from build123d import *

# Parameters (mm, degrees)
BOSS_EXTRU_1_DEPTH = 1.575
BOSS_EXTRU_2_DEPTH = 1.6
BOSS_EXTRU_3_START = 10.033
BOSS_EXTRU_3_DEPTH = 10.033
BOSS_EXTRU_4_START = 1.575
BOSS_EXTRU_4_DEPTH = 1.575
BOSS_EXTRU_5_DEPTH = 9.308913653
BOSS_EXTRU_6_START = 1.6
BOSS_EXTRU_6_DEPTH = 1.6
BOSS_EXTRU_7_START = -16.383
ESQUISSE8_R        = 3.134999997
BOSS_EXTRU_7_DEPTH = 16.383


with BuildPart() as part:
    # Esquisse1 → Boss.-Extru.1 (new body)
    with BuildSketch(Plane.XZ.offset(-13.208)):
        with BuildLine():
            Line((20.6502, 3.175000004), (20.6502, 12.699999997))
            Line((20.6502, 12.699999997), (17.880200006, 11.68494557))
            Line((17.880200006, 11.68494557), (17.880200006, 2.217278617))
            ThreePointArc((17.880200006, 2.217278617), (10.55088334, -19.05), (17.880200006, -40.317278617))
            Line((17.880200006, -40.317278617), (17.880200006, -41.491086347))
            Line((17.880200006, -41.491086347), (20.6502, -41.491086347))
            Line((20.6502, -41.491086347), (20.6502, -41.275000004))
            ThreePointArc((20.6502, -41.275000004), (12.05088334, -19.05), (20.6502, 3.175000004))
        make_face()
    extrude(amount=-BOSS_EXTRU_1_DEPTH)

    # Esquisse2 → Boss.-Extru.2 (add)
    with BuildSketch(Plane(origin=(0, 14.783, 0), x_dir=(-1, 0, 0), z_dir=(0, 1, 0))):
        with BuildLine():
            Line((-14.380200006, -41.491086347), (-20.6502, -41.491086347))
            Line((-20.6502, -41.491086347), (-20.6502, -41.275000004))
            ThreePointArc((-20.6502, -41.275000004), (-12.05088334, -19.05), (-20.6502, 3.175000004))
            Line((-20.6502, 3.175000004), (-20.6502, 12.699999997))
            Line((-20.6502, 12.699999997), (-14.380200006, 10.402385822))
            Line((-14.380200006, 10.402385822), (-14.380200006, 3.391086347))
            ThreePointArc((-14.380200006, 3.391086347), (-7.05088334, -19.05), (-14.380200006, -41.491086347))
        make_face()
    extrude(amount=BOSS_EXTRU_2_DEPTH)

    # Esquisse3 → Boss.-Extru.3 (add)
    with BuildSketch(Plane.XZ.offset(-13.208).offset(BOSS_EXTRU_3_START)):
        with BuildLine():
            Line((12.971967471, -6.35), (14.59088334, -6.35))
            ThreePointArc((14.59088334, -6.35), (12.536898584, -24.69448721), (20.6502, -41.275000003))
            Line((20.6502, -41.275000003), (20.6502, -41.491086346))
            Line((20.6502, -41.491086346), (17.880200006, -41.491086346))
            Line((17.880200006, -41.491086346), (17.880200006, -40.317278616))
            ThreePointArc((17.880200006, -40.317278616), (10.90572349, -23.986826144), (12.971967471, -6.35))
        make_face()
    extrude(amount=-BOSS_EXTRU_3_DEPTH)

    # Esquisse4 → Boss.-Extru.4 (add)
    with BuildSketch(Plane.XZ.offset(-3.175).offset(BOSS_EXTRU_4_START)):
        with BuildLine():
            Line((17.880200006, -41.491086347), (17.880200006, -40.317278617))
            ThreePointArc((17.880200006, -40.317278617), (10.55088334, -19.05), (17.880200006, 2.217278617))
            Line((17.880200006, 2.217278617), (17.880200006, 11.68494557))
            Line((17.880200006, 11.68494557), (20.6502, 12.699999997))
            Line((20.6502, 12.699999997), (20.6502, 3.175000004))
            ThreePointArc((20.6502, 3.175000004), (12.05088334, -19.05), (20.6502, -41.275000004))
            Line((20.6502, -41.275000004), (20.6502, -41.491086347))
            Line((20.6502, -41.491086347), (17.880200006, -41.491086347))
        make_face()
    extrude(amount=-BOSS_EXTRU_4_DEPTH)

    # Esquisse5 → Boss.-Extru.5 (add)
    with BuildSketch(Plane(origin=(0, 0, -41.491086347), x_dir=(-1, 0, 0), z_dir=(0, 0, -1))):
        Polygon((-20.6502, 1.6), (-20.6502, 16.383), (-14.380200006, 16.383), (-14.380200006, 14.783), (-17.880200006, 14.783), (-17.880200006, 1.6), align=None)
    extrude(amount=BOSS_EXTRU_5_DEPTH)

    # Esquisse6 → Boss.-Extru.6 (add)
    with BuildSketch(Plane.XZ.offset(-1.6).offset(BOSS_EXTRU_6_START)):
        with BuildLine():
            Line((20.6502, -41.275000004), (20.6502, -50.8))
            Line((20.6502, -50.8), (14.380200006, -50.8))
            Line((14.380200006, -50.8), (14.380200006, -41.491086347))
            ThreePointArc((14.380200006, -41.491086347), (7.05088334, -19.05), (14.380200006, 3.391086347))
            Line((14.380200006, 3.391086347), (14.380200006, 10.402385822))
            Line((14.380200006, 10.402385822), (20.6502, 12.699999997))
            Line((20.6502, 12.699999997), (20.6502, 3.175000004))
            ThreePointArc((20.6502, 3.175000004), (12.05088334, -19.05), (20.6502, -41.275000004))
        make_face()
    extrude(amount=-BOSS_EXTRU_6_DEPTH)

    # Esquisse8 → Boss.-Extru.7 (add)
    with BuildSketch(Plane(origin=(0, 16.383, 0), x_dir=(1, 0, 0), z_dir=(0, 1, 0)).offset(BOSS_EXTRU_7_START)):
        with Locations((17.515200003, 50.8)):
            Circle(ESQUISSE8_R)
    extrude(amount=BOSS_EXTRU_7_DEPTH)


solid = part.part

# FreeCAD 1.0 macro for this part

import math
import FreeCAD as App
import Part
import Sketcher
from FreeCAD import Vector
Q = App.Units.Quantity


def add_polygon(sketch, points):
    """Adds a closed chain of lines whose ends are joined by coincident constraints."""
    first, n = sketch.GeometryCount, len(points)
    for a, b in zip(points, points[1:] + points[:1]):
        sketch.addGeometry(Part.LineSegment(App.Vector(*a, 0), App.Vector(*b, 0)), False)
    for i in range(n):
        sketch.addConstraint(Sketcher.Constraint("Coincident", first + i, 2, first + (i + 1) % n, 1))

doc = App.newDocument("Part")
body = doc.addObject("PartDesign::Body", "Body")

# Sketch on XZ plane
sketch1 = doc.addObject("Sketcher::SketchObject", "Sketch")
body.addObject(sketch1)
sketch1.AttachmentSupport = (doc.XZ_Plane, [""])
sketch1.MapMode = "FlatFace"
sketch1.AttachmentOffset = App.Placement(Vector(0, 0, -0.52 * 25.4), App.Rotation())
sketch1.addGeometry(Part.LineSegment(Vector(20.65, 3.18, 0), Vector(20.65, 12.7, 0)), False)
sketch1.addGeometry(Part.LineSegment(Vector(20.65, 12.7, 0), Vector(17.88, 11.68, 0)), False)
sketch1.addGeometry(Part.LineSegment(Vector(17.88, 11.68, 0), Vector(17.88, 2.22, 0)), False)
sketch1.addGeometry(Part.ArcOfCircle(Part.Circle(Vector(45.07, -19.05, 0), Vector(0, 0, 1), 34.52), math.radians(142), math.radians(218)), False)
sketch1.addGeometry(Part.LineSegment(Vector(17.88, -40.32, 0), Vector(17.88, -41.49, 0)), False)
sketch1.addGeometry(Part.LineSegment(Vector(17.88, -41.49, 0), Vector(20.65, -41.49, 0)), False)
sketch1.addGeometry(Part.LineSegment(Vector(20.65, -41.49, 0), Vector(20.65, -41.28, 0)), False)
sketch1.addGeometry(Part.ArcOfCircle(Part.Circle(Vector(45.07, -19.05, 0), Vector(0, 0, 1), 33.02), math.radians(138), math.radians(222)), False)
sketch1.addConstraint(Sketcher.Constraint("Coincident", 0, 2, 1, 1))
sketch1.addConstraint(Sketcher.Constraint("Coincident", 1, 2, 2, 1))
sketch1.addConstraint(Sketcher.Constraint("Coincident", 2, 2, 3, 1))
sketch1.addConstraint(Sketcher.Constraint("Coincident", 3, 2, 4, 1))
sketch1.addConstraint(Sketcher.Constraint("Coincident", 4, 2, 5, 1))
sketch1.addConstraint(Sketcher.Constraint("Coincident", 5, 2, 6, 1))
sketch1.addConstraint(Sketcher.Constraint("Coincident", 6, 2, 7, 2))
sketch1.addConstraint(Sketcher.Constraint("Coincident", 7, 1, 0, 1))
sketch1.addConstraint(Sketcher.Constraint("Vertical", 0))
sketch1.addConstraint(Sketcher.Constraint("Vertical", 2))
sketch1.addConstraint(Sketcher.Constraint("Vertical", 4))
sketch1.addConstraint(Sketcher.Constraint("Horizontal", 5))
sketch1.addConstraint(Sketcher.Constraint("Vertical", 6))
sketch1.addConstraint(Sketcher.Constraint("Coincident", 7, 3, 3, 3))
sketch1.addConstraint(Sketcher.Constraint("Vertical", 2, 2, 3, 2))
sketch1.addConstraint(Sketcher.Constraint("Vertical", 0, 2, 5, 2))
sketch1.addConstraint(Sketcher.Constraint("Radius", 7, Q("1.3 in")))
sketch1.addConstraint(Sketcher.Constraint("DistanceY", -1, 1, 0, 2, Q("0.5 in")))
sketch1.addConstraint(Sketcher.Constraint("DistanceY", 0, 1, 0, 2, Q("0.375 in")))
sketch1.addConstraint(Sketcher.Constraint("DistanceY", 3, 3, -1, 1, Q("0.75 in")))
sketch1.addConstraint(Sketcher.Constraint("Radius", 3, Q("34.52 mm")))
sketch1.addConstraint(Sketcher.Constraint("DistanceX", -1, 1, 0, 2, Q("0.813 in")))
sketch1.addConstraint(Sketcher.Constraint("DistanceX", 5, 1, 5, 2, Q("2.77 mm")))
sketch1.addConstraint(Sketcher.Constraint("DistanceY", 2, 2, 2, 1, Q("9.467667 mm")))
sketch1.addConstraint(Sketcher.Constraint("DistanceY", 4, 2, 4, 1, Q("1.173808 mm")))
pad1 = doc.addObject("PartDesign::Pad", "Pad")
body.addObject(pad1)
pad1.Profile = sketch1
pad1.Length = 1.575
pad1.Reversed = True

# Sketch on XZ plane
sketch2 = doc.addObject("Sketcher::SketchObject", "Sketch001")
body.addObject(sketch2)
sketch2.AttachmentSupport = (doc.XZ_Plane, [""])
sketch2.MapMode = "FlatFace"
sketch2.AttachmentOffset = App.Placement(Vector(0, 0, -14.783), App.Rotation())
sketch2.addGeometry(Part.LineSegment(Vector(20.65, -41.49, 0), Vector(14.38, -41.49, 0)), False)
sketch2.addGeometry(Part.ArcOfCircle(Part.Circle(Vector(45.07, -19.05, 0), Vector(0, 0, 1), 38.02), math.radians(144), math.radians(216)), False)
sketch2.addGeometry(Part.LineSegment(Vector(14.38, 3.39, 0), Vector(14.38, 10.4, 0)), False)
sketch2.addGeometry(Part.LineSegment(Vector(14.38, 10.4, 0), Vector(20.65, 12.7, 0)), False)
sketch2.addGeometry(Part.LineSegment(Vector(20.65, 12.7, 0), Vector(20.65, 3.18, 0)), False)
sketch2.addGeometry(Part.ArcOfCircle(Part.Circle(Vector(45.07, -19.05, 0), Vector(0, 0, 1), 33.02), math.radians(138), math.radians(222)), False)
sketch2.addGeometry(Part.LineSegment(Vector(20.65, -41.28, 0), Vector(20.65, -41.49, 0)), False)
sketch2.addConstraint(Sketcher.Constraint("Coincident", 0, 2, 1, 2))
sketch2.addConstraint(Sketcher.Constraint("Coincident", 1, 1, 2, 1))
sketch2.addConstraint(Sketcher.Constraint("Coincident", 2, 2, 3, 1))
sketch2.addConstraint(Sketcher.Constraint("Coincident", 3, 2, 4, 1))
sketch2.addConstraint(Sketcher.Constraint("Coincident", 4, 2, 5, 1))
sketch2.addConstraint(Sketcher.Constraint("Coincident", 5, 2, 6, 1))
sketch2.addConstraint(Sketcher.Constraint("Coincident", 6, 2, 0, 1))
sketch2.addConstraint(Sketcher.Constraint("Horizontal", 0))
sketch2.addConstraint(Sketcher.Constraint("Vertical", 2))
sketch2.addConstraint(Sketcher.Constraint("Vertical", 4))
sketch2.addConstraint(Sketcher.Constraint("Vertical", 6))
sketch2.addConstraint(Sketcher.Constraint("Coincident", 5, 3, 1, 3))
sketch2.addConstraint(Sketcher.Constraint("Vertical", 0, 2, 1, 1))
sketch2.addConstraint(Sketcher.Constraint("Vertical", 4, 2, 5, 2))
sketch2.addConstraint(Sketcher.Constraint("Radius", 5, Q("1.3 in")))
sketch2.addConstraint(Sketcher.Constraint("DistanceY", -1, 1, 3, 2, Q("0.5 in")))
sketch2.addConstraint(Sketcher.Constraint("DistanceY", 4, 2, 4, 1, Q("0.375 in")))
sketch2.addConstraint(Sketcher.Constraint("DistanceY", 1, 3, -1, 1, Q("0.75 in")))
sketch2.addConstraint(Sketcher.Constraint("Radius", 1, Q("38.02 mm")))
sketch2.addConstraint(Sketcher.Constraint("DistanceX", -1, 1, 3, 2, Q("0.813 in")))
sketch2.addConstraint(Sketcher.Constraint("DistanceX", 0, 2, 0, 1, Q("6.27 mm")))
sketch2.addConstraint(Sketcher.Constraint("DistanceY", 2, 1, 2, 2, Q("7.011299 mm")))
pad2 = doc.addObject("PartDesign::Pad", "Pad001")
body.addObject(pad2)
pad2.Profile = sketch2
pad2.Length = 1.6
pad2.Reversed = True

# Sketch on XZ plane
sketch3 = doc.addObject("Sketcher::SketchObject", "Sketch002")
body.addObject(sketch3)
sketch3.AttachmentSupport = (doc.XZ_Plane, [""])
sketch3.MapMode = "FlatFace"
sketch3.AttachmentOffset = App.Placement(Vector(0, 0, -0.125 * 25.4), App.Rotation())
sketch3.addGeometry(Part.LineSegment(Vector(14.59, -6.35, 0), Vector(12.97, -6.35, 0)), False)
sketch3.addGeometry(Part.ArcOfCircle(Part.Circle(Vector(45.07, -19.05, 0), Vector(0, 0, 1), 34.52), math.radians(158), math.radians(218)), False)
sketch3.addGeometry(Part.LineSegment(Vector(17.88, -40.32, 0), Vector(17.88, -41.49, 0)), False)
sketch3.addGeometry(Part.LineSegment(Vector(17.88, -41.49, 0), Vector(20.65, -41.49, 0)), False)
sketch3.addGeometry(Part.LineSegment(Vector(20.65, -41.49, 0), Vector(20.65, -41.28, 0)), False)
sketch3.addGeometry(Part.ArcOfCircle(Part.Circle(Vector(45.07, -19.05, 0), Vector(0, 0, 1), 33.02), math.radians(157), math.radians(222)), False)
sketch3.addConstraint(Sketcher.Constraint("Coincident", 0, 2, 1, 1))
sketch3.addConstraint(Sketcher.Constraint("Coincident", 1, 2, 2, 1))
sketch3.addConstraint(Sketcher.Constraint("Coincident", 2, 2, 3, 1))
sketch3.addConstraint(Sketcher.Constraint("Coincident", 3, 2, 4, 1))
sketch3.addConstraint(Sketcher.Constraint("Coincident", 4, 2, 5, 2))
sketch3.addConstraint(Sketcher.Constraint("Coincident", 5, 1, 0, 1))
sketch3.addConstraint(Sketcher.Constraint("Horizontal", 0))
sketch3.addConstraint(Sketcher.Constraint("Vertical", 2))
sketch3.addConstraint(Sketcher.Constraint("Horizontal", 3))
sketch3.addConstraint(Sketcher.Constraint("Vertical", 4))
sketch3.addConstraint(Sketcher.Constraint("Coincident", 5, 3, 1, 3))
sketch3.addConstraint(Sketcher.Constraint("Radius", 5, Q("1.3 in")))
sketch3.addConstraint(Sketcher.Constraint("DistanceY", 1, 3, 0, 2, Q("0.5 in")))
sketch3.addConstraint(Sketcher.Constraint("DistanceY", 1, 3, -1, 1, Q("0.75 in")))
sketch3.addConstraint(Sketcher.Constraint("Radius", 1, Q("34.52 mm")))
sketch3.addConstraint(Sketcher.Constraint("DistanceX", -1, 1, 3, 2, Q("0.813 in")))
sketch3.addConstraint(Sketcher.Constraint("DistanceY", 4, 2, -1, 1, Q("1.625 in")))
sketch3.addConstraint(Sketcher.Constraint("DistanceX", 3, 1, 3, 2, Q("2.77 mm")))
sketch3.addConstraint(Sketcher.Constraint("DistanceY", 2, 2, 2, 1, Q("1.173808 mm")))
pad3 = doc.addObject("PartDesign::Pad", "Pad002")
body.addObject(pad3)
pad3.Profile = sketch3
pad3.Length = Q("0.395 in")
pad3.Reversed = True

# Sketch on XZ plane
sketch4 = doc.addObject("Sketcher::SketchObject", "Sketch003")
body.addObject(sketch4)
sketch4.AttachmentSupport = (doc.XZ_Plane, [""])
sketch4.MapMode = "FlatFace"
sketch4.AttachmentOffset = App.Placement(Vector(0, 0, -1.6), App.Rotation())
sketch4.addGeometry(Part.LineSegment(Vector(17.88, -40.32, 0), Vector(17.88, -41.49, 0)), False)
sketch4.addGeometry(Part.LineSegment(Vector(17.88, -41.49, 0), Vector(20.65, -41.49, 0)), False)
sketch4.addGeometry(Part.LineSegment(Vector(20.65, -41.49, 0), Vector(20.65, -41.28, 0)), False)
sketch4.addGeometry(Part.ArcOfCircle(Part.Circle(Vector(45.07, -19.05, 0), Vector(0, 0, 1), 33.02), math.radians(138), math.radians(222)), False)
sketch4.addGeometry(Part.LineSegment(Vector(20.65, 3.18, 0), Vector(20.65, 12.7, 0)), False)
sketch4.addGeometry(Part.LineSegment(Vector(20.65, 12.7, 0), Vector(17.88, 11.68, 0)), False)
sketch4.addGeometry(Part.LineSegment(Vector(17.88, 11.68, 0), Vector(17.88, 2.22, 0)), False)
sketch4.addGeometry(Part.ArcOfCircle(Part.Circle(Vector(45.07, -19.05, 0), Vector(0, 0, 1), 34.52), math.radians(142), math.radians(218)), False)
sketch4.addConstraint(Sketcher.Constraint("Coincident", 0, 2, 1, 1))
sketch4.addConstraint(Sketcher.Constraint("Coincident", 1, 2, 2, 1))
sketch4.addConstraint(Sketcher.Constraint("Coincident", 2, 2, 3, 2))
sketch4.addConstraint(Sketcher.Constraint("Coincident", 3, 1, 4, 1))
sketch4.addConstraint(Sketcher.Constraint("Coincident", 4, 2, 5, 1))
sketch4.addConstraint(Sketcher.Constraint("Coincident", 5, 2, 6, 1))
sketch4.addConstraint(Sketcher.Constraint("Coincident", 6, 2, 7, 1))
sketch4.addConstraint(Sketcher.Constraint("Coincident", 7, 2, 0, 1))
sketch4.addConstraint(Sketcher.Constraint("Vertical", 0))
sketch4.addConstraint(Sketcher.Constraint("Horizontal", 1))
sketch4.addConstraint(Sketcher.Constraint("Vertical", 2))
sketch4.addConstraint(Sketcher.Constraint("Vertical", 4))
sketch4.addConstraint(Sketcher.Constraint("Vertical", 6))
sketch4.addConstraint(Sketcher.Constraint("Coincident", 7, 3, 3, 3))
sketch4.addConstraint(Sketcher.Constraint("Vertical", 2, 2, 3, 1))
sketch4.addConstraint(Sketcher.Constraint("Vertical", 0, 2, 5, 2))
sketch4.addConstraint(Sketcher.Constraint("Radius", 3, Q("1.3 in")))
sketch4.addConstraint(Sketcher.Constraint("DistanceY", -1, 1, 4, 2, Q("0.5 in")))
sketch4.addConstraint(Sketcher.Constraint("DistanceY", 4, 1, 4, 2, Q("0.375 in")))
sketch4.addConstraint(Sketcher.Constraint("DistanceY", 3, 3, -1, 1, Q("0.75 in")))
sketch4.addConstraint(Sketcher.Constraint("Radius", 7, Q("34.52 mm")))
sketch4.addConstraint(Sketcher.Constraint("DistanceX", -1, 1, 1, 2, Q("0.813 in")))
sketch4.addConstraint(Sketcher.Constraint("DistanceX", 1, 1, 1, 2, Q("2.77 mm")))
sketch4.addConstraint(Sketcher.Constraint("DistanceY", 0, 2, 0, 1, Q("1.173808 mm")))
sketch4.addConstraint(Sketcher.Constraint("DistanceY", 6, 2, 6, 1, Q("9.467667 mm")))
pad4 = doc.addObject("PartDesign::Pad", "Pad003")
body.addObject(pad4)
pad4.Profile = sketch4
pad4.Length = 1.575
pad4.Reversed = True

# Sketch on XY plane
sketch5 = doc.addObject("Sketcher::SketchObject", "Sketch004")
body.addObject(sketch5)
sketch5.AttachmentSupport = (doc.XY_Plane, [""])
sketch5.MapMode = "FlatFace"
sketch5.AttachmentOffset = App.Placement(Vector(0, 0, -41.491086), App.Rotation())
add_polygon(sketch5, [(20.7, 16.4), (20.7, 1.6), (17.9, 1.6), (17.9, 14.8), (14.4, 14.8), (14.4, 16.4)])  # lines 0-5
sketch5.addConstraint(Sketcher.Constraint("Vertical", 0))
sketch5.addConstraint(Sketcher.Constraint("Horizontal", 1))
sketch5.addConstraint(Sketcher.Constraint("Vertical", 2))
sketch5.addConstraint(Sketcher.Constraint("Horizontal", 3))
sketch5.addConstraint(Sketcher.Constraint("Vertical", 4))
sketch5.addConstraint(Sketcher.Constraint("Horizontal", 5))
sketch5.addConstraint(Sketcher.Constraint("DistanceX", -1, 1, 0, 2, Q("0.813 in")))
sketch5.addConstraint(Sketcher.Constraint("DistanceY", -1, 1, 4, 2, Q("0.645 in")))
sketch5.addConstraint(Sketcher.Constraint("DistanceX", 1, 2, 1, 1, Q("2.77 mm")))
sketch5.addConstraint(Sketcher.Constraint("DistanceX", 3, 2, 3, 1, Q("3.5 mm")))
sketch5.addConstraint(Sketcher.Constraint("DistanceY", 0, 2, 0, 1, Q("14.783 mm")))
sketch5.addConstraint(Sketcher.Constraint("DistanceY", 2, 1, 2, 2, Q("13.183 mm")))
pad5 = doc.addObject("PartDesign::Pad", "Pad004")
body.addObject(pad5)
pad5.Profile = sketch5
pad5.Length = 9.308914
pad5.Reversed = True

# Sketch on XZ plane
sketch6 = doc.addObject("Sketcher::SketchObject", "Sketch005")
body.addObject(sketch6)
sketch6.AttachmentSupport = (doc.XZ_Plane, [""])
sketch6.MapMode = "FlatFace"
sketch6.addGeometry(Part.LineSegment(Vector(21, -51, 0), Vector(21, -41, 0)), False)
sketch6.addGeometry(Part.ArcOfCircle(Part.Circle(Vector(45, -19, 0), Vector(0, 0, 1), 33), math.radians(138), math.radians(222)), False)
sketch6.addGeometry(Part.LineSegment(Vector(21, 3, 0), Vector(21, 13, 0)), False)
sketch6.addGeometry(Part.LineSegment(Vector(21, 13, 0), Vector(14, 10, 0)), False)
sketch6.addGeometry(Part.LineSegment(Vector(14, 10, 0), Vector(14, 3, 0)), False)
sketch6.addGeometry(Part.ArcOfCircle(Part.Circle(Vector(45, -19, 0), Vector(0, 0, 1), 38), math.radians(144), math.radians(216)), False)
sketch6.addGeometry(Part.LineSegment(Vector(14, -41, 0), Vector(14, -51, 0)), False)
sketch6.addGeometry(Part.LineSegment(Vector(14, -51, 0), Vector(21, -51, 0)), False)
sketch6.addConstraint(Sketcher.Constraint("Coincident", 0, 2, 1, 2))
sketch6.addConstraint(Sketcher.Constraint("Coincident", 1, 1, 2, 1))
sketch6.addConstraint(Sketcher.Constraint("Coincident", 2, 2, 3, 1))
sketch6.addConstraint(Sketcher.Constraint("Coincident", 3, 2, 4, 1))
sketch6.addConstraint(Sketcher.Constraint("Coincident", 4, 2, 5, 1))
sketch6.addConstraint(Sketcher.Constraint("Coincident", 5, 2, 6, 1))
sketch6.addConstraint(Sketcher.Constraint("Coincident", 6, 2, 7, 1))
sketch6.addConstraint(Sketcher.Constraint("Coincident", 7, 2, 0, 1))
sketch6.addConstraint(Sketcher.Constraint("Vertical", 0))
sketch6.addConstraint(Sketcher.Constraint("Vertical", 2))
sketch6.addConstraint(Sketcher.Constraint("Vertical", 4))
sketch6.addConstraint(Sketcher.Constraint("Vertical", 6))
sketch6.addConstraint(Sketcher.Constraint("Horizontal", 7))
sketch6.addConstraint(Sketcher.Constraint("Coincident", 5, 3, 1, 3))
sketch6.addConstraint(Sketcher.Constraint("Vertical", 0, 2, 1, 1))
sketch6.addConstraint(Sketcher.Constraint("Vertical", 4, 2, 5, 2))
sketch6.addConstraint(Sketcher.Constraint("Equal", 0, 2))
sketch6.addConstraint(Sketcher.Constraint("Radius", 1, Q("1.3 in")))
sketch6.addConstraint(Sketcher.Constraint("DistanceY", 6, 2, -1, 1, Q("2 in")))
sketch6.addConstraint(Sketcher.Constraint("DistanceY", -1, 1, 2, 2, Q("0.5 in")))
sketch6.addConstraint(Sketcher.Constraint("DistanceY", 0, 1, 0, 2, Q("0.375 in")))
sketch6.addConstraint(Sketcher.Constraint("Radius", 5, Q("38.02 mm")))
sketch6.addConstraint(Sketcher.Constraint("DistanceX", -1, 1, 0, 2, Q("0.813 in")))
sketch6.addConstraint(Sketcher.Constraint("DistanceX", 7, 1, 7, 2, Q("6.27 mm")))
sketch6.addConstraint(Sketcher.Constraint("DistanceY", 4, 2, 4, 1, Q("7.011299 mm")))
pad6 = doc.addObject("PartDesign::Pad", "Pad005")
body.addObject(pad6)
pad6.Profile = sketch6
pad6.Length = 1.6
pad6.Reversed = True

# Sketch on XZ plane
sketch7 = doc.addObject("Sketcher::SketchObject", "Sketch006")
body.addObject(sketch7)
sketch7.AttachmentSupport = (doc.XZ_Plane, [""])
sketch7.MapMode = "FlatFace"
sketch7.addGeometry(Part.Circle(Vector(17.5, -50.8, 0), Vector(0, 0, 1), 3.1), False)
sketch7.addConstraint(Sketcher.Constraint("DistanceY", 0, 3, -1, 1, Q("2 in")))
sketch7.addConstraint(Sketcher.Constraint("Diameter", 0, Q("6.27 mm")))
sketch7.addConstraint(Sketcher.Constraint("DistanceX", -1, 1, 0, 3, Q("17.5152 mm")))
pad7 = doc.addObject("PartDesign::Pad", "Pad006")
body.addObject(pad7)
pad7.Profile = sketch7
pad7.Length = Q("0.645 in")
pad7.Reversed = True

doc.recompute()
